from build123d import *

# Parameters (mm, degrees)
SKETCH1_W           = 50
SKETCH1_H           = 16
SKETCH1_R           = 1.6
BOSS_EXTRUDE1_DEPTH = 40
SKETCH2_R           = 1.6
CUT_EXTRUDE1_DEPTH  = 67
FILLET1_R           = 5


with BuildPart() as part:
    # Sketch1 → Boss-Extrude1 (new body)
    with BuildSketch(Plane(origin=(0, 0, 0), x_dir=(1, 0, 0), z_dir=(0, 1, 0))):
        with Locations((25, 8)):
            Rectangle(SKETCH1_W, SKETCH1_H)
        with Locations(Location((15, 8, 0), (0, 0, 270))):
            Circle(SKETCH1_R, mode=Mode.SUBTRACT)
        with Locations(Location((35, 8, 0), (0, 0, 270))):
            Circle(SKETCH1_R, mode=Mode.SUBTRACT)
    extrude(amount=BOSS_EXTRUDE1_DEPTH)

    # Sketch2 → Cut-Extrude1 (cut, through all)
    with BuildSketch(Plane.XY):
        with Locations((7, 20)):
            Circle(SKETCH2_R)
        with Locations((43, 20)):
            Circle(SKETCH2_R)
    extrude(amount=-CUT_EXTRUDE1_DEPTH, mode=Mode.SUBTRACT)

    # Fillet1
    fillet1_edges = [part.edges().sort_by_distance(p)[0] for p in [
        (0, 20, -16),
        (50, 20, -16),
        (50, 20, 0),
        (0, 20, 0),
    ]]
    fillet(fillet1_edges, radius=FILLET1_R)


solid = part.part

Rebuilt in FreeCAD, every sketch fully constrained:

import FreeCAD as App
import Part
import Sketcher

V = App.Vector


def edges_at(feature, points):
    """Names of the edges that pass closest to the given points."""
    edges = feature.Shape.Edges
    near = lambda p: min(range(len(edges)), key=lambda i: edges[i].distToShape(Part.Vertex(*p))[0])
    return sorted({f"Edge{near(p) + 1}" for p in points})

doc = App.newDocument("Part")
body = doc.addObject("PartDesign::Body", "Body")

sketch1 = doc.addObject("Sketcher::SketchObject", "Sketch")
body.addObject(sketch1)
sketch1.AttachmentSupport = (doc.XZ_Plane, [""])
sketch1.MapMode = "FlatFace"
sketch1.addGeometry([
    Part.LineSegment(V(0, -16, 0), V(0, 0, 0)),
    Part.LineSegment(V(0, 0, 0), V(50, 0, 0)),
    Part.LineSegment(V(50, 0, 0), V(50, -16, 0)),
    Part.LineSegment(V(50, -16, 0), V(0, -16, 0)),
    Part.Circle(V(15, -8, 0), V(0, 0, 1), 1.6),
    Part.Circle(V(35, -8, 0), V(0, 0, 1), 1.6),
], False)
sketch1.addConstraint([
    Sketcher.Constraint("Coincident", 0, 2, 1, 1),
    Sketcher.Constraint("Coincident", 1, 2, 2, 1),
    Sketcher.Constraint("Coincident", 2, 2, 3, 1),
    Sketcher.Constraint("Coincident", 3, 2, 0, 1),
    Sketcher.Constraint("Vertical", 0),
    Sketcher.Constraint("Horizontal", 1),
    Sketcher.Constraint("Vertical", 2),
    Sketcher.Constraint("Horizontal", 3),
    Sketcher.Constraint("Coincident", 0, 2, -1, 1),
    Sketcher.Constraint("Equal", 4, 5),
    Sketcher.Constraint("Horizontal", 4, 3, 5, 3),
    Sketcher.Constraint("Diameter", 4, 3.2),
    Sketcher.Constraint("DistanceX", 1, 1, 1, 2, 50.0),
    Sketcher.Constraint("DistanceY", 0, 1, 0, 2, 16.0),
    Sketcher.Constraint("DistanceX", -1, 1, 4, 3, 15.0),
    Sketcher.Constraint("DistanceY", 4, 3, -1, 1, 8.0),
    Sketcher.Constraint("DistanceX", -1, 1, 5, 3, 35.0),
])
pad1 = doc.addObject("PartDesign::Pad", "Pad")
body.addObject(pad1)
pad1.Profile = sketch1
pad1.Length = 40
pad1.Reversed = True

sketch2 = doc.addObject("Sketcher::SketchObject", "Sketch001")
body.addObject(sketch2)
sketch2.AttachmentSupport = (doc.XY_Plane, [""])
sketch2.MapMode = "FlatFace"
sketch2.addGeometry([
    Part.Circle(V(7, 20, 0), V(0, 0, 1), 1.6),
    Part.Circle(V(43, 20, 0), V(0, 0, 1), 1.6),
], False)
sketch2.addConstraint([
    Sketcher.Constraint("Equal", 0, 1),
    Sketcher.Constraint("Horizontal", 0, 3, 1, 3),
    Sketcher.Constraint("Diameter", 0, 3.2),
    Sketcher.Constraint("DistanceX", -1, 1, 0, 3, 7.0),
    Sketcher.Constraint("DistanceY", -1, 1, 0, 3, 20.0),
    Sketcher.Constraint("DistanceX", -1, 1, 1, 3, 43.0),
])
pocket1 = doc.addObject("PartDesign::Pocket", "Pocket")
body.addObject(pocket1)
pocket1.Profile = sketch2
pocket1.Type = "ThroughAll"
doc.recompute()

fillet = doc.addObject("PartDesign::Fillet", "Fillet")
body.addObject(fillet)
fillet.Base = (pocket1, edges_at(pocket1, [
    (0, 20, -16),
    (50, 20, -16),
    (50, 20, 0),
    (0, 20, 0),
]))
fillet.Radius = 5

doc.recompute()
